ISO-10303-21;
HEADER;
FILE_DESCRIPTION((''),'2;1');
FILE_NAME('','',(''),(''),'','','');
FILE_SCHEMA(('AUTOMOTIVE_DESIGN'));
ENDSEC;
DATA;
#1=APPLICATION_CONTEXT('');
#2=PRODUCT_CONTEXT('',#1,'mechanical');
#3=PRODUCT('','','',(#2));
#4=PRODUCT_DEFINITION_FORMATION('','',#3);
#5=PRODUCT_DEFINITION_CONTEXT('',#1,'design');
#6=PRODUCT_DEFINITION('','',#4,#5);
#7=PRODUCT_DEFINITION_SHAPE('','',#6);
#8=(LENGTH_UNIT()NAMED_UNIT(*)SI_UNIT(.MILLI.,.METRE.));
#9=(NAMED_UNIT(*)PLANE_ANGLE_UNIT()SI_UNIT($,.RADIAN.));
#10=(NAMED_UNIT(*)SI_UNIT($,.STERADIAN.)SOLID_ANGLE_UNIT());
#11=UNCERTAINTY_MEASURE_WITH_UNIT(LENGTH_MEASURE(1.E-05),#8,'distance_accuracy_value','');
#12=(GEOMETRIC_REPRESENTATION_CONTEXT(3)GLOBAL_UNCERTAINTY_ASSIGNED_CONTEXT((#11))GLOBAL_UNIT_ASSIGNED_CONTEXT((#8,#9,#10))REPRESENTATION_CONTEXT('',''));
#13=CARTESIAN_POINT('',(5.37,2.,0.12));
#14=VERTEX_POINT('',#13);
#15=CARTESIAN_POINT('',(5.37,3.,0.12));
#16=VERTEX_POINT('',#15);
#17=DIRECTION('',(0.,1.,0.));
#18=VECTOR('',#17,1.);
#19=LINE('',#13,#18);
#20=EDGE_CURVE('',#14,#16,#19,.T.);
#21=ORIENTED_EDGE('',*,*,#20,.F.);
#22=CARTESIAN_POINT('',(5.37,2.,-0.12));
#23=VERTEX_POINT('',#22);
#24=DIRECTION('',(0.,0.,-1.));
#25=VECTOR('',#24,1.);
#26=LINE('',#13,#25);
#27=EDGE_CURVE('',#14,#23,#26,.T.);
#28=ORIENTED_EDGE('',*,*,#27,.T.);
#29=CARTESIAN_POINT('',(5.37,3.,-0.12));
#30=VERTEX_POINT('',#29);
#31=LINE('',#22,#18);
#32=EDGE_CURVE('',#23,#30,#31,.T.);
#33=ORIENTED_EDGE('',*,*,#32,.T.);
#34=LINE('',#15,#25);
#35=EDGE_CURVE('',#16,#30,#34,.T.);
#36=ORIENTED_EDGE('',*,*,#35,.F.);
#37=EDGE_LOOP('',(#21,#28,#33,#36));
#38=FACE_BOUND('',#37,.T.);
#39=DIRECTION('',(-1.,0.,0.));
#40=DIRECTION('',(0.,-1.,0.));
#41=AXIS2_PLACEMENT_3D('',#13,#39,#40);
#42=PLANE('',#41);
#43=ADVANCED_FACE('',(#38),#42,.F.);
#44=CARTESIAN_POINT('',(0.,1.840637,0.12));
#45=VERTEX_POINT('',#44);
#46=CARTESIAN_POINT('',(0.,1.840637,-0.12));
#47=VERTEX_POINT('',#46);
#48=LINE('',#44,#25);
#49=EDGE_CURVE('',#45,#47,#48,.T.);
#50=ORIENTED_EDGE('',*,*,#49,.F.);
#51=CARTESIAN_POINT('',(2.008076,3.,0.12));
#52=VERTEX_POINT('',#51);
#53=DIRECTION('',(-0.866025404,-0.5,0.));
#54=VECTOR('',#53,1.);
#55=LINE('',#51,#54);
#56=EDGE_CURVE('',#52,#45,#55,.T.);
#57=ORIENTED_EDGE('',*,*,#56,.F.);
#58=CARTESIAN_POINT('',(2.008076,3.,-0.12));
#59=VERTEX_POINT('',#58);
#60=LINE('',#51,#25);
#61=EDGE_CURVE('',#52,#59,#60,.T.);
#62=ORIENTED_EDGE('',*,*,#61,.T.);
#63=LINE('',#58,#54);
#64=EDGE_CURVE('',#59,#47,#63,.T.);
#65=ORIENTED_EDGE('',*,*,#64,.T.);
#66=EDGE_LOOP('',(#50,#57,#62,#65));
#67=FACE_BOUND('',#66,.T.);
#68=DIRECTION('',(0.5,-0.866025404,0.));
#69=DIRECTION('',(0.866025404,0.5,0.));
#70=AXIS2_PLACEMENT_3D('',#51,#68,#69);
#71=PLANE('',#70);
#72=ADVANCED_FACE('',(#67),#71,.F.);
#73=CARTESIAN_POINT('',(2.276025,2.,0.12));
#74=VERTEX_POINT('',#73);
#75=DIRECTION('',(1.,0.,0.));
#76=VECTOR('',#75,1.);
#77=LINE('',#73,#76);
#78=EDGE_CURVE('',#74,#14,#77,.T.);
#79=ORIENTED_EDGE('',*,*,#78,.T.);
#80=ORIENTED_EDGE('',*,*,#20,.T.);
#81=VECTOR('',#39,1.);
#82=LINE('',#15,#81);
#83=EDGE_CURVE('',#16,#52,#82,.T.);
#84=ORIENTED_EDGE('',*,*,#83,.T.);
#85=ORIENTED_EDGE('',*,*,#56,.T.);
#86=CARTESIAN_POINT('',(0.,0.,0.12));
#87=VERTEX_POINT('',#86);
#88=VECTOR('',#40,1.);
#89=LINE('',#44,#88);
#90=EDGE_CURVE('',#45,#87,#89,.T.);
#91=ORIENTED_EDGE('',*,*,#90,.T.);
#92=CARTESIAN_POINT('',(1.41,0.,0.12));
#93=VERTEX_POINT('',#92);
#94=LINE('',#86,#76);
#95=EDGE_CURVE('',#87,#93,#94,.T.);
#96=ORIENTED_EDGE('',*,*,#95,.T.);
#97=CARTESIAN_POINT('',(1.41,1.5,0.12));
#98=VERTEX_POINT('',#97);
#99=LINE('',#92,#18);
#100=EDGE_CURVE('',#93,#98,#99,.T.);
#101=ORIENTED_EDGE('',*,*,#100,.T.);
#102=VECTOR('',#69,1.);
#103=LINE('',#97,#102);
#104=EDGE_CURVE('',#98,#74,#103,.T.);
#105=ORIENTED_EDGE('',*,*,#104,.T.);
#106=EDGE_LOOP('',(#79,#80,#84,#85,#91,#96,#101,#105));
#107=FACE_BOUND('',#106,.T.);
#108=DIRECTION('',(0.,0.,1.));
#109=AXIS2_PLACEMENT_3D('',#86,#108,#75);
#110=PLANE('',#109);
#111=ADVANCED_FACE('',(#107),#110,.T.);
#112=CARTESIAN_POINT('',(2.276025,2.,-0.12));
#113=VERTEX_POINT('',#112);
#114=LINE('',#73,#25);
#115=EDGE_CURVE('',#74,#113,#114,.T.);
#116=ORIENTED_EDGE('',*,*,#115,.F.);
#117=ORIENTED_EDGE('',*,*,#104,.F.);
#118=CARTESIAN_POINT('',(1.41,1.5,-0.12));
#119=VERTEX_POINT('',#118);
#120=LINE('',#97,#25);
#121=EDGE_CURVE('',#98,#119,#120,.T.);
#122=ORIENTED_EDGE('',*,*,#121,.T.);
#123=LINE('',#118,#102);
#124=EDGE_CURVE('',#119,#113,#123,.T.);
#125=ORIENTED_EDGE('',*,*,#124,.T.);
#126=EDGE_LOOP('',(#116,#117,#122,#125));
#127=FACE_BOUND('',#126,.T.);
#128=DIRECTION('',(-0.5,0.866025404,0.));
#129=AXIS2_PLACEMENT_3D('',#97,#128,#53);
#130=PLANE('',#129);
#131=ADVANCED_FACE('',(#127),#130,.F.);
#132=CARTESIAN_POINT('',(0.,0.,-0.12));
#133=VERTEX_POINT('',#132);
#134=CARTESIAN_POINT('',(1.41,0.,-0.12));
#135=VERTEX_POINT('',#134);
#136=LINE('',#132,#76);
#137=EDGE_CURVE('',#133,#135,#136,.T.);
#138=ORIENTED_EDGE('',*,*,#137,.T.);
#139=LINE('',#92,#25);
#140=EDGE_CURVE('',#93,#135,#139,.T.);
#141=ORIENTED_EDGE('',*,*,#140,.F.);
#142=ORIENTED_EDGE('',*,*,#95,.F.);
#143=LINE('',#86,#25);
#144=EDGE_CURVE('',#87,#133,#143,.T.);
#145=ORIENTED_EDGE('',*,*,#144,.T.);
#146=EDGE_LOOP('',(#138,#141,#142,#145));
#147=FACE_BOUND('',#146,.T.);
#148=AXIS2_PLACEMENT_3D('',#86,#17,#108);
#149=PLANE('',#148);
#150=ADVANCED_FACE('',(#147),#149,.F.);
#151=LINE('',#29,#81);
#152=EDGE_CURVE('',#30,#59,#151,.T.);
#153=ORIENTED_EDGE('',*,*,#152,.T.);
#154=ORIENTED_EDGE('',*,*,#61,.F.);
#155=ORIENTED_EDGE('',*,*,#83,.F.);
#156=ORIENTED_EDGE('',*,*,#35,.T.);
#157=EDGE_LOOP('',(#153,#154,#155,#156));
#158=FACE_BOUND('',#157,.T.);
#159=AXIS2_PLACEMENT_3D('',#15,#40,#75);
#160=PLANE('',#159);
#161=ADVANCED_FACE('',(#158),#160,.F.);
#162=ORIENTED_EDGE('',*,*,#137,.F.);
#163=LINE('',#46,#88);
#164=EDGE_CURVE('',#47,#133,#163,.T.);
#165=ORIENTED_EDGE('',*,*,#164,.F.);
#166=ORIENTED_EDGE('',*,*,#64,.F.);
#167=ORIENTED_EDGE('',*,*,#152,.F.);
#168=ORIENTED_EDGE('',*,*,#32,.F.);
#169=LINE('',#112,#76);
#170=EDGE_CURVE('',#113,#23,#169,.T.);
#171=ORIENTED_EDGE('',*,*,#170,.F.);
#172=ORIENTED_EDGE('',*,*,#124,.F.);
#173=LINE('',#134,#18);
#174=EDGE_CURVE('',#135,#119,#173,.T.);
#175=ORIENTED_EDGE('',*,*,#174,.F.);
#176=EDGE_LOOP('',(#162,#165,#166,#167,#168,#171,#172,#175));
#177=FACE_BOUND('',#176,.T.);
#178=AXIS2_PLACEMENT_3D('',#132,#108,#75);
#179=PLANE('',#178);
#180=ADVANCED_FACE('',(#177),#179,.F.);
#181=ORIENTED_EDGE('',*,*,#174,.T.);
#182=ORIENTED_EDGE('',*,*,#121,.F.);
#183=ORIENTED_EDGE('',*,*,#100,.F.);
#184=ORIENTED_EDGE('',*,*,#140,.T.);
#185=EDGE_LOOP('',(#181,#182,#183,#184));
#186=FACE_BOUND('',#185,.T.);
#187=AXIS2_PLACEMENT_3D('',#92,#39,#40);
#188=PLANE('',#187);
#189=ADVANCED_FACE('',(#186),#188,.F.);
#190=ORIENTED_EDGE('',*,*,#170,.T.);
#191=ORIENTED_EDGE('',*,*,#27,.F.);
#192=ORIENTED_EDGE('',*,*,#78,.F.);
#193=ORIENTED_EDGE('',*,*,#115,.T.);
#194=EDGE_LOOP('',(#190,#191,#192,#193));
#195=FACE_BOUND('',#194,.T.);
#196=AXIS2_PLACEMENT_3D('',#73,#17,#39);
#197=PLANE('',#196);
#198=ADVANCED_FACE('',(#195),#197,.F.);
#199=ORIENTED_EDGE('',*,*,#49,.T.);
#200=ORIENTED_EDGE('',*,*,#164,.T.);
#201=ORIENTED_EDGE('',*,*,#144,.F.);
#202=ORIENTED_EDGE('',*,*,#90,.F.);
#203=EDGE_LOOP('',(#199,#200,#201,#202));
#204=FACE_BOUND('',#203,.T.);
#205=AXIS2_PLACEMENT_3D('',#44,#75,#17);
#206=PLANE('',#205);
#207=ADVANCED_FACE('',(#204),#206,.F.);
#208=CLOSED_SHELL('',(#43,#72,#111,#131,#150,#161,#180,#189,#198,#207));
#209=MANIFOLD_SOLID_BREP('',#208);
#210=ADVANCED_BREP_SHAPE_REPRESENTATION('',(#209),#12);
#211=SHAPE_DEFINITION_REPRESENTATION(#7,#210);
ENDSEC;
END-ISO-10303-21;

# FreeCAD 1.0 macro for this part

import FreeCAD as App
import Part
import Sketcher
Q = App.Units.Quantity


def add_polygon(sketch, points):
    """Adds a closed chain of lines whose ends are joined by coincident constraints."""
    first, n = sketch.GeometryCount, len(points)
    for a, b in zip(points, points[1:] + points[:1]):
        sketch.addGeometry(Part.LineSegment(App.Vector(*a, 0), App.Vector(*b, 0)), False)
    for i in range(n):
        sketch.addConstraint(Sketcher.Constraint("Coincident", first + i, 2, first + (i + 1) % n, 1))

doc = App.newDocument("Part")
body = doc.addObject("PartDesign::Body", "Body")

# Sketch on XY plane
sketch1 = body.newObject("Sketcher::SketchObject", "Sketch")
sketch1.AttachmentSupport = (doc.getObject("XY_Plane"), [""])
sketch1.MapMode = "FlatFace"
add_polygon(sketch1, [(0, 0), (1.41, 0), (1.41, 1.5), (2.276025, 2), (5.37, 2), (5.37, 3), (2.008076, 3), (0, 1.840637)])  # lines 0-7
sketch1.addConstraint([
    Sketcher.Constraint("Horizontal", 0),
    Sketcher.Constraint("Vertical", 1),
    Sketcher.Constraint("Horizontal", 3),
    Sketcher.Constraint("Vertical", 4),
    Sketcher.Constraint("Horizontal", 5),
    Sketcher.Constraint("Vertical", 7),
    Sketcher.Constraint("Coincident", 7, 2, -1, 1),
    Sketcher.Constraint("Parallel", 2, 6),
    Sketcher.Constraint("DistanceY", 4, 1, 4, 2, 1.0),
    Sketcher.Constraint("Angle", 2, Q("30 deg")),
    Sketcher.Constraint("Distance", 2, 1.0),
    Sketcher.Constraint("DistanceY", 1, 1, 1, 2, 1.5),
    Sketcher.Constraint("DistanceX", 0, 1, 0, 2, 1.41),
    Sketcher.Constraint("DistanceX", -1, 1, 3, 2, 5.37),
    Sketcher.Constraint("DistanceX", 5, 2, 5, 1, 3.361924),
])
pad1 = body.newObject("PartDesign::Pad", "Pad")
pad1.Profile = sketch1
pad1.Length = 0.24
pad1.Midplane = True

doc.recompute()
